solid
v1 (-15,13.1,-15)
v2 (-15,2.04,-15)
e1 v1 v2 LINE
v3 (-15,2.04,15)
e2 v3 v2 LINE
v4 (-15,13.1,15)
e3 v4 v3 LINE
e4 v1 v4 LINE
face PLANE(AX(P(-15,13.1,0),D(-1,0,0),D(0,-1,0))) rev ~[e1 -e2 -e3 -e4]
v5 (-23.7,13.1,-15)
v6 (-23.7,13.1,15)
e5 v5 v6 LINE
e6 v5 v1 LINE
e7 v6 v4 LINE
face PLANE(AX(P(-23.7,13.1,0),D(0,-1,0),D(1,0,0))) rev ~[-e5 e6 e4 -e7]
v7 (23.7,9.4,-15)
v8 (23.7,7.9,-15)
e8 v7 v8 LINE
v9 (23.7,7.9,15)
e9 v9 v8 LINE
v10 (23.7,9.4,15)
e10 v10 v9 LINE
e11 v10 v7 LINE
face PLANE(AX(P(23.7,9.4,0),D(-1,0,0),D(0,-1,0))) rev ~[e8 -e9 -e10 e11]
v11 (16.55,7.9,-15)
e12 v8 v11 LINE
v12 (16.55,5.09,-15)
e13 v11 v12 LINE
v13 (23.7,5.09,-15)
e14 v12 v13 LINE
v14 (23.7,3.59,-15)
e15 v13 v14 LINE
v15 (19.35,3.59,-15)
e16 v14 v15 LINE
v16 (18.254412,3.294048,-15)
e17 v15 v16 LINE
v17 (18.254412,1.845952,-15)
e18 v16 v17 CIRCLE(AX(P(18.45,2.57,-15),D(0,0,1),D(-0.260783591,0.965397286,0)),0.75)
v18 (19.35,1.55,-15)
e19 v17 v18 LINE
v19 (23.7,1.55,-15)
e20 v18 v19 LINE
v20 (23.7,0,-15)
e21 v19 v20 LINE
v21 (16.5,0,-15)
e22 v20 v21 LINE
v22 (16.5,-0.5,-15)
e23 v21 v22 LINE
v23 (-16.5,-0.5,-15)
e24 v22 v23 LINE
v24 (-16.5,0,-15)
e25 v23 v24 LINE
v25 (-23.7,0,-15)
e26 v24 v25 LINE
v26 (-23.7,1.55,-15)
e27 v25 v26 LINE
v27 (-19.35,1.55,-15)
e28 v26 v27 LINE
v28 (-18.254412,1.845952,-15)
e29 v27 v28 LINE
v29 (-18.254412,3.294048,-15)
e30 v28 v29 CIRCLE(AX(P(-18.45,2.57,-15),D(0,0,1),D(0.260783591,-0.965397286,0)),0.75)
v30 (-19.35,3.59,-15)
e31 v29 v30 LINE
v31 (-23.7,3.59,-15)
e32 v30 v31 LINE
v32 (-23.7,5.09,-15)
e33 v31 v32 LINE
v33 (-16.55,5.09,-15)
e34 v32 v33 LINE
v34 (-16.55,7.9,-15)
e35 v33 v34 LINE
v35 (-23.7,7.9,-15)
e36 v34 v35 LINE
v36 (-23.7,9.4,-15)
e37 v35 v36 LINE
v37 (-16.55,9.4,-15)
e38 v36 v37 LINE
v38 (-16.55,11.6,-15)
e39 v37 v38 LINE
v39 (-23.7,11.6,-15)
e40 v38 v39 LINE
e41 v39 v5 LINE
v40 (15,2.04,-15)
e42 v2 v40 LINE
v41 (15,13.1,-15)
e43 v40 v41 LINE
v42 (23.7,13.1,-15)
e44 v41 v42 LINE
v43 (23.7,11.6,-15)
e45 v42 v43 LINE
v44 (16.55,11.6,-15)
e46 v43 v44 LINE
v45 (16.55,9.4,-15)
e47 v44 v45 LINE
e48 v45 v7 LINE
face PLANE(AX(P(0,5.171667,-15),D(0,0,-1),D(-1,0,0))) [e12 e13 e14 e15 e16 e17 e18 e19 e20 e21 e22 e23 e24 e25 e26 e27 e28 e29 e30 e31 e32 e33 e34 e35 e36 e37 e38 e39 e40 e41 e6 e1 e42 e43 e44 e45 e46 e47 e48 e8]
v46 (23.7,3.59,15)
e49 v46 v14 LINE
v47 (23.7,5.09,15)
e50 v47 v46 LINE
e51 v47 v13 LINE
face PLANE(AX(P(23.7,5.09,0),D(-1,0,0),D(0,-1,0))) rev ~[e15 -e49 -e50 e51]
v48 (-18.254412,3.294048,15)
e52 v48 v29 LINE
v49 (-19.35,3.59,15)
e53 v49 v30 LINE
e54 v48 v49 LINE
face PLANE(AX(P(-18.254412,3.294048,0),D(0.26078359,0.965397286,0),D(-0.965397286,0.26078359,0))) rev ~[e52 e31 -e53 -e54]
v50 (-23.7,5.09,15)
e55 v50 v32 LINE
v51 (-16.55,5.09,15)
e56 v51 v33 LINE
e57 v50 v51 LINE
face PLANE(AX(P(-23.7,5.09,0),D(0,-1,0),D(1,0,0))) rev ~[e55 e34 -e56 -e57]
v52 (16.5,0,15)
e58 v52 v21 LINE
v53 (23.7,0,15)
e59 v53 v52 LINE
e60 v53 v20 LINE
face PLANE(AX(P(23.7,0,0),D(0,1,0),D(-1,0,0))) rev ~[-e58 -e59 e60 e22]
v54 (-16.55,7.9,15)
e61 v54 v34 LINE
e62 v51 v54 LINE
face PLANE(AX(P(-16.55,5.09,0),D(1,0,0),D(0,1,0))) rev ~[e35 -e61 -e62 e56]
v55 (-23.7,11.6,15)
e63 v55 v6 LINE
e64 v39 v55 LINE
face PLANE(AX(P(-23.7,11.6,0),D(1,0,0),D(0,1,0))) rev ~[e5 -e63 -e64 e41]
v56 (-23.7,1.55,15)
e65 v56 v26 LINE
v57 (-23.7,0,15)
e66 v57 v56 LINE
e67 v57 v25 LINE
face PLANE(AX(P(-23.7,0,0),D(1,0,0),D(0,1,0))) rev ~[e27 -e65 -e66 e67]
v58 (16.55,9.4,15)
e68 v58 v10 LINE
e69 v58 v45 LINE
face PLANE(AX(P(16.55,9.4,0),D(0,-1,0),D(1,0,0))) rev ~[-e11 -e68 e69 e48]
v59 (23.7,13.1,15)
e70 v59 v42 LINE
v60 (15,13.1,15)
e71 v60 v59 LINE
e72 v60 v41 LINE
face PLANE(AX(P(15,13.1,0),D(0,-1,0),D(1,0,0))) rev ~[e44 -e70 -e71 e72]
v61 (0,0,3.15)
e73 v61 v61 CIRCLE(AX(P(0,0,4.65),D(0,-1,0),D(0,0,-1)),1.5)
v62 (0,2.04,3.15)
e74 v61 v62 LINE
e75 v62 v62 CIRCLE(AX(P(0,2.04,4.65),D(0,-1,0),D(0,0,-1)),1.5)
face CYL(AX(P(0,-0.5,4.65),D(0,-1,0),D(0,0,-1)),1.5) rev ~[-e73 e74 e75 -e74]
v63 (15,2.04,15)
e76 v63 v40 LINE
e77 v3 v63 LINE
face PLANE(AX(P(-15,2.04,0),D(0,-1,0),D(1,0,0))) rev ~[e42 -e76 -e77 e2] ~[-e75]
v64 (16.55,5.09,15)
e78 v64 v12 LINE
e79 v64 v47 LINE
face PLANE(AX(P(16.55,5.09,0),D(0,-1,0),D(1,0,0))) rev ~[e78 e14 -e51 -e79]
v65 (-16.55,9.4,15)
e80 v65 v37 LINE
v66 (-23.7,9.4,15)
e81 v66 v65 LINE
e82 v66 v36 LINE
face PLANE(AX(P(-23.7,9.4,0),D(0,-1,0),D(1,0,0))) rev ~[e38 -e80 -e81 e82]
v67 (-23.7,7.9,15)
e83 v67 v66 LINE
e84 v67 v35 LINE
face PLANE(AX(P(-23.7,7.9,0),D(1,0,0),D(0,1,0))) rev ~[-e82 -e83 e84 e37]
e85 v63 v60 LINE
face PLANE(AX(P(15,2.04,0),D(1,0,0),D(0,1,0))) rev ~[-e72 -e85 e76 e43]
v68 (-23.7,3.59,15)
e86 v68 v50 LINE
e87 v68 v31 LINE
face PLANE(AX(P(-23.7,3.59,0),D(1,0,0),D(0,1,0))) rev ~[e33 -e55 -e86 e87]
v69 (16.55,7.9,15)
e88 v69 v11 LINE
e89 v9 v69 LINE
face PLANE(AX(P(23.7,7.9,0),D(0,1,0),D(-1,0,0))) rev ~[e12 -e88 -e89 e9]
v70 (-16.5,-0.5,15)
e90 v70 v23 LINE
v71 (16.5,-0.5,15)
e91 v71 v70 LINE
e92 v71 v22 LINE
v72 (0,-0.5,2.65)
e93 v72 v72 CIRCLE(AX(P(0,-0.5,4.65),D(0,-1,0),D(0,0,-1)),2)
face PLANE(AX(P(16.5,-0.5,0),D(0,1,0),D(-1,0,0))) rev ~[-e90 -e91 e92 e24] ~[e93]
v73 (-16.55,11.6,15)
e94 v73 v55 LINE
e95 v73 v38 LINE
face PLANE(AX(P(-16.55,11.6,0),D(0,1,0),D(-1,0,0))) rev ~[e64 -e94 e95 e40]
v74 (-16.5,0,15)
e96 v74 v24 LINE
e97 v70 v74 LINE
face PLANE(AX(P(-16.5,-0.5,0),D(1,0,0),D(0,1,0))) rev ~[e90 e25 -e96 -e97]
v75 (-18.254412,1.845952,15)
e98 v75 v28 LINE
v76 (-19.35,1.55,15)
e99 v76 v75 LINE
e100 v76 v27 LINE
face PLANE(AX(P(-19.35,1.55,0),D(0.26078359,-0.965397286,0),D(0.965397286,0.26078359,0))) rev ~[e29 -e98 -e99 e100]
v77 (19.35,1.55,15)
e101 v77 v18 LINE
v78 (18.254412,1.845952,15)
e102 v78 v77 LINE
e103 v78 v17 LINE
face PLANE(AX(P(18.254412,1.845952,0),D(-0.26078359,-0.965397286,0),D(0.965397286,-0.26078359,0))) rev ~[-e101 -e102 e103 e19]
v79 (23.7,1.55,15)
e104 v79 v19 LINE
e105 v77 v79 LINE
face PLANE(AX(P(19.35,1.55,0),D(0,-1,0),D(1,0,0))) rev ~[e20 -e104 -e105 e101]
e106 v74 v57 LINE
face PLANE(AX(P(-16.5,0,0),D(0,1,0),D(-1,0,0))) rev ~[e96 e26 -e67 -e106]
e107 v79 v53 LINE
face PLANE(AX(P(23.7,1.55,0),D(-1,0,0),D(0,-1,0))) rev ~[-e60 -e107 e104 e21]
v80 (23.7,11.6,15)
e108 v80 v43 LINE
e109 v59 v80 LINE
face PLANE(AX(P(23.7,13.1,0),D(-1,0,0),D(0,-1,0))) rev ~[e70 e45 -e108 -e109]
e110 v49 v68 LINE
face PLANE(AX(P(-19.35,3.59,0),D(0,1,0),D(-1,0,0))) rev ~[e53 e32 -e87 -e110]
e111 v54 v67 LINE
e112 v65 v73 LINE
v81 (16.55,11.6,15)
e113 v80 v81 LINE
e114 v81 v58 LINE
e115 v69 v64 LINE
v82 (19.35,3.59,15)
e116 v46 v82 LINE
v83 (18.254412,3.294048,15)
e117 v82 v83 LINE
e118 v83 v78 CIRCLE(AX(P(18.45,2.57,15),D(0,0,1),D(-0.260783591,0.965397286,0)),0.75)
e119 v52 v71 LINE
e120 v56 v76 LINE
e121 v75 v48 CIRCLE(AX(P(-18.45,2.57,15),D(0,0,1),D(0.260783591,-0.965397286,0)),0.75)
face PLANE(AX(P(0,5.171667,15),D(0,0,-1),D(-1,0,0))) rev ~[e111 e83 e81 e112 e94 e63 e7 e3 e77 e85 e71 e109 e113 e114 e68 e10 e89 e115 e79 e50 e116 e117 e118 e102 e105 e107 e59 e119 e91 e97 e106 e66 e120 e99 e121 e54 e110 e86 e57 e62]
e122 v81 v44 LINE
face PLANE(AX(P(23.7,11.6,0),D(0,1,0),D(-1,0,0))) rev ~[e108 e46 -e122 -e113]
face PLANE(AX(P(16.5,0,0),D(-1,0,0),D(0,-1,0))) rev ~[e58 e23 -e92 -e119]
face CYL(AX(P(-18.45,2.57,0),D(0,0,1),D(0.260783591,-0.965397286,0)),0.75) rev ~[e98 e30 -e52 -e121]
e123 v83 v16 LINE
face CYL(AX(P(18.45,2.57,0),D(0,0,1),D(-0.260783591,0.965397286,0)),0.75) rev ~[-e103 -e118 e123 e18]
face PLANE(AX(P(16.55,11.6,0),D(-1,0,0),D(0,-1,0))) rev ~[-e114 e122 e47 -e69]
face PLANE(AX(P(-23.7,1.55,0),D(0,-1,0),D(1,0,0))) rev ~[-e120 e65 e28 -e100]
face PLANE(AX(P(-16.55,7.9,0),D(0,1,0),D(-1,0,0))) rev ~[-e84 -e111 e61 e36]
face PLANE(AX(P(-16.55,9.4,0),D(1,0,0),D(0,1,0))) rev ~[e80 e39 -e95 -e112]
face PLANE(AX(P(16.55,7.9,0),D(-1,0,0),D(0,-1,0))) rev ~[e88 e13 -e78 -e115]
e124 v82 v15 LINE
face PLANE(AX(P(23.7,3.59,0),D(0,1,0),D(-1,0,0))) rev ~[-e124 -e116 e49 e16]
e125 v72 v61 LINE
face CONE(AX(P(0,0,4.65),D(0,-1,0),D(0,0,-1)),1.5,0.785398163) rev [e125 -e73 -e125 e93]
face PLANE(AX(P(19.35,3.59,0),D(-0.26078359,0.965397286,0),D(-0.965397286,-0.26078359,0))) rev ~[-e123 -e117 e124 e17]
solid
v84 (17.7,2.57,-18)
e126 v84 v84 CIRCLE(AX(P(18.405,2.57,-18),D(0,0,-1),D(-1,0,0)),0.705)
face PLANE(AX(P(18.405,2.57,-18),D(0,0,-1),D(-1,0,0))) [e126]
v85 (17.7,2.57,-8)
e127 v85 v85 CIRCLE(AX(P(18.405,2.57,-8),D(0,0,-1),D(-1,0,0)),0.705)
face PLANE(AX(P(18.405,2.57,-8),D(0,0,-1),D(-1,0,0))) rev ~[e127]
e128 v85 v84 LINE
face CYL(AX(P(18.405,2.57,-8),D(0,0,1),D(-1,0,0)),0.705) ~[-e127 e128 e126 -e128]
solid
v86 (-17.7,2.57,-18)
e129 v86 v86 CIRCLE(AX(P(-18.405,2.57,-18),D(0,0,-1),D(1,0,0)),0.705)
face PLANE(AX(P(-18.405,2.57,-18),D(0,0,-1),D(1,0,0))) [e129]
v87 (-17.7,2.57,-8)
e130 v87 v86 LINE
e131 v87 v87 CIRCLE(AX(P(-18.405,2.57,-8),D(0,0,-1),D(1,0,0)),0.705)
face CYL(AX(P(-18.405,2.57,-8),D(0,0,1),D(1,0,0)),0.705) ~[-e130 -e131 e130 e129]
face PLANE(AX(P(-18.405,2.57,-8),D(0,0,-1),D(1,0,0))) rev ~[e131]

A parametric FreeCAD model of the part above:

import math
import FreeCAD as App
import Part
import Sketcher

V = App.Vector


def edges_at(feature, points):
    """Names of the edges that pass closest to the given points."""
    edges = feature.Shape.Edges
    near = lambda p: min(range(len(edges)), key=lambda i: edges[i].distToShape(Part.Vertex(*p))[0])
    return sorted({f"Edge{near(p) + 1}" for p in points})

doc = App.newDocument("Part")
body = doc.addObject("PartDesign::Body", "Body")

# Sketch on XY plane
sketch1 = body.newObject("Sketcher::SketchObject", "Sketch")
sketch1.AttachmentSupport = (doc.getObject("XY_Plane"), [""])
sketch1.MapMode = "FlatFace"
sketch1.addGeometry(Part.LineSegment(V(-15, 2, 0), V(-15, 13.1, 0)), False)
sketch1.addGeometry(Part.LineSegment(V(-15, 13.1, 0), V(-23.7, 13.1, 0)), False)
sketch1.addGeometry(Part.LineSegment(V(-23.7, 13.1, 0), V(-23.7, 11.6, 0)), False)
sketch1.addGeometry(Part.LineSegment(V(-23.7, 11.6, 0), V(-16.6, 11.6, 0)), False)
sketch1.addGeometry(Part.LineSegment(V(-16.6, 11.6, 0), V(-16.6, 9.4, 0)), False)
sketch1.addGeometry(Part.LineSegment(V(-16.6, 9.4, 0), V(-23.7, 9.4, 0)), False)
sketch1.addGeometry(Part.LineSegment(V(-23.7, 9.4, 0), V(-23.7, 7.9, 0)), False)
sketch1.addGeometry(Part.LineSegment(V(-23.7, 7.9, 0), V(-16.6, 7.9, 0)), False)
sketch1.addGeometry(Part.LineSegment(V(-16.6, 7.9, 0), V(-16.6, 5.1, 0)), False)
sketch1.addGeometry(Part.LineSegment(V(-16.6, 5.1, 0), V(-23.7, 5.1, 0)), False)
sketch1.addGeometry(Part.LineSegment(V(-23.7, 5.1, 0), V(-23.7, 3.6, 0)), False)
sketch1.addGeometry(Part.LineSegment(V(-23.7, 3.6, 0), V(-19.4, 3.6, 0)), False)
sketch1.addGeometry(Part.LineSegment(V(-19.4, 3.6, 0), V(-18.3, 3.3, 0)), False)
sketch1.addGeometry(Part.ArcOfCircle(Part.Circle(V(-18.4, 2.6, 0), V(0, 0, 1), 0.8), math.radians(-75), math.radians(75)), False)
sketch1.addGeometry(Part.LineSegment(V(-18.3, 1.8, 0), V(-19.4, 1.6, 0)), False)
sketch1.addGeometry(Part.LineSegment(V(-19.4, 1.6, 0), V(-23.7, 1.6, 0)), False)
sketch1.addGeometry(Part.LineSegment(V(-23.7, 1.6, 0), V(-23.7, 0, 0)), False)
sketch1.addGeometry(Part.LineSegment(V(-23.7, 0, 0), V(-16.5, 0, 0)), False)
sketch1.addGeometry(Part.LineSegment(V(-16.5, 0, 0), V(-16.5, -0.5, 0)), False)
sketch1.addGeometry(Part.LineSegment(V(-16.5, -0.5, 0), V(16.5, -0.5, 0)), False)
sketch1.addGeometry(Part.LineSegment(V(16.5, -0.5, 0), V(16.5, 0, 0)), False)
sketch1.addGeometry(Part.LineSegment(V(16.5, 0, 0), V(23.7, 0, 0)), False)
sketch1.addGeometry(Part.LineSegment(V(23.7, 0, 0), V(23.7, 1.6, 0)), False)
sketch1.addGeometry(Part.LineSegment(V(23.7, 1.6, 0), V(19.4, 1.6, 0)), False)
sketch1.addGeometry(Part.LineSegment(V(19.4, 1.6, 0), V(18.3, 1.8, 0)), False)
sketch1.addGeometry(Part.ArcOfCircle(Part.Circle(V(18.4, 2.6, 0), V(0, 0, 1), 0.8), math.radians(105), math.radians(255)), False)
sketch1.addGeometry(Part.LineSegment(V(18.3, 3.3, 0), V(19.4, 3.6, 0)), False)
sketch1.addGeometry(Part.LineSegment(V(19.4, 3.6, 0), V(23.7, 3.6, 0)), False)
sketch1.addGeometry(Part.LineSegment(V(23.7, 3.6, 0), V(23.7, 5.1, 0)), False)
sketch1.addGeometry(Part.LineSegment(V(23.7, 5.1, 0), V(16.6, 5.1, 0)), False)
sketch1.addGeometry(Part.LineSegment(V(16.6, 5.1, 0), V(16.6, 7.9, 0)), False)
sketch1.addGeometry(Part.LineSegment(V(16.6, 7.9, 0), V(23.7, 7.9, 0)), False)
sketch1.addGeometry(Part.LineSegment(V(23.7, 7.9, 0), V(23.7, 9.4, 0)), False)
sketch1.addGeometry(Part.LineSegment(V(23.7, 9.4, 0), V(16.6, 9.4, 0)), False)
sketch1.addGeometry(Part.LineSegment(V(16.6, 9.4, 0), V(16.6, 11.6, 0)), False)
sketch1.addGeometry(Part.LineSegment(V(16.6, 11.6, 0), V(23.7, 11.6, 0)), False)
sketch1.addGeometry(Part.LineSegment(V(23.7, 11.6, 0), V(23.7, 13.1, 0)), False)
sketch1.addGeometry(Part.LineSegment(V(23.7, 13.1, 0), V(15, 13.1, 0)), False)
sketch1.addGeometry(Part.LineSegment(V(15, 13.1, 0), V(15, 2, 0)), False)
sketch1.addGeometry(Part.LineSegment(V(15, 2, 0), V(-15, 2, 0)), False)
sketch1.addConstraint(Sketcher.Constraint("Coincident", 0, 2, 1, 1))
sketch1.addConstraint(Sketcher.Constraint("Coincident", 1, 2, 2, 1))
sketch1.addConstraint(Sketcher.Constraint("Coincident", 2, 2, 3, 1))
sketch1.addConstraint(Sketcher.Constraint("Coincident", 3, 2, 4, 1))
sketch1.addConstraint(Sketcher.Constraint("Coincident", 4, 2, 5, 1))
sketch1.addConstraint(Sketcher.Constraint("Coincident", 5, 2, 6, 1))
sketch1.addConstraint(Sketcher.Constraint("Coincident", 6, 2, 7, 1))
sketch1.addConstraint(Sketcher.Constraint("Coincident", 7, 2, 8, 1))
sketch1.addConstraint(Sketcher.Constraint("Coincident", 8, 2, 9, 1))
sketch1.addConstraint(Sketcher.Constraint("Coincident", 9, 2, 10, 1))
sketch1.addConstraint(Sketcher.Constraint("Coincident", 10, 2, 11, 1))
sketch1.addConstraint(Sketcher.Constraint("Coincident", 11, 2, 12, 1))
sketch1.addConstraint(Sketcher.Constraint("Tangent", 12, 2, 13, 2))
sketch1.addConstraint(Sketcher.Constraint("Tangent", 13, 1, 14, 1))
sketch1.addConstraint(Sketcher.Constraint("Coincident", 14, 2, 15, 1))
sketch1.addConstraint(Sketcher.Constraint("Coincident", 15, 2, 16, 1))
sketch1.addConstraint(Sketcher.Constraint("Coincident", 16, 2, 17, 1))
sketch1.addConstraint(Sketcher.Constraint("Coincident", 17, 2, 18, 1))
sketch1.addConstraint(Sketcher.Constraint("Coincident", 18, 2, 19, 1))
sketch1.addConstraint(Sketcher.Constraint("Coincident", 19, 2, 20, 1))
sketch1.addConstraint(Sketcher.Constraint("Coincident", 20, 2, 21, 1))
sketch1.addConstraint(Sketcher.Constraint("Coincident", 21, 2, 22, 1))
sketch1.addConstraint(Sketcher.Constraint("Coincident", 22, 2, 23, 1))
sketch1.addConstraint(Sketcher.Constraint("Coincident", 23, 2, 24, 1))
sketch1.addConstraint(Sketcher.Constraint("Tangent", 24, 2, 25, 2))
sketch1.addConstraint(Sketcher.Constraint("Tangent", 25, 1, 26, 1))
sketch1.addConstraint(Sketcher.Constraint("Coincident", 26, 2, 27, 1))
sketch1.addConstraint(Sketcher.Constraint("Coincident", 27, 2, 28, 1))
sketch1.addConstraint(Sketcher.Constraint("Coincident", 28, 2, 29, 1))
sketch1.addConstraint(Sketcher.Constraint("Coincident", 29, 2, 30, 1))
sketch1.addConstraint(Sketcher.Constraint("Coincident", 30, 2, 31, 1))
sketch1.addConstraint(Sketcher.Constraint("Coincident", 31, 2, 32, 1))
sketch1.addConstraint(Sketcher.Constraint("Coincident", 32, 2, 33, 1))
sketch1.addConstraint(Sketcher.Constraint("Coincident", 33, 2, 34, 1))
sketch1.addConstraint(Sketcher.Constraint("Coincident", 34, 2, 35, 1))
sketch1.addConstraint(Sketcher.Constraint("Coincident", 35, 2, 36, 1))
sketch1.addConstraint(Sketcher.Constraint("Coincident", 36, 2, 37, 1))
sketch1.addConstraint(Sketcher.Constraint("Coincident", 37, 2, 38, 1))
sketch1.addConstraint(Sketcher.Constraint("Coincident", 38, 2, 39, 1))
sketch1.addConstraint(Sketcher.Constraint("Coincident", 39, 2, 0, 1))
sketch1.addConstraint(Sketcher.Constraint("Vertical", 0))
sketch1.addConstraint(Sketcher.Constraint("Horizontal", 1))
sketch1.addConstraint(Sketcher.Constraint("Vertical", 2))
sketch1.addConstraint(Sketcher.Constraint("Horizontal", 3))
sketch1.addConstraint(Sketcher.Constraint("Vertical", 4))
sketch1.addConstraint(Sketcher.Constraint("Horizontal", 5))
sketch1.addConstraint(Sketcher.Constraint("Vertical", 6))
sketch1.addConstraint(Sketcher.Constraint("Horizontal", 7))
sketch1.addConstraint(Sketcher.Constraint("Vertical", 8))
sketch1.addConstraint(Sketcher.Constraint("Horizontal", 9))
sketch1.addConstraint(Sketcher.Constraint("Vertical", 10))
sketch1.addConstraint(Sketcher.Constraint("Horizontal", 11))
sketch1.addConstraint(Sketcher.Constraint("Horizontal", 15))
sketch1.addConstraint(Sketcher.Constraint("Vertical", 16))
sketch1.addConstraint(Sketcher.Constraint("Horizontal", 17))
sketch1.addConstraint(Sketcher.Constraint("Vertical", 18))
sketch1.addConstraint(Sketcher.Constraint("Horizontal", 19))
sketch1.addConstraint(Sketcher.Constraint("Vertical", 20))
sketch1.addConstraint(Sketcher.Constraint("Horizontal", 21))
sketch1.addConstraint(Sketcher.Constraint("Vertical", 22))
sketch1.addConstraint(Sketcher.Constraint("Horizontal", 23))
sketch1.addConstraint(Sketcher.Constraint("Horizontal", 27))
sketch1.addConstraint(Sketcher.Constraint("Vertical", 28))
sketch1.addConstraint(Sketcher.Constraint("Horizontal", 29))
sketch1.addConstraint(Sketcher.Constraint("Vertical", 30))
sketch1.addConstraint(Sketcher.Constraint("Horizontal", 31))
sketch1.addConstraint(Sketcher.Constraint("Vertical", 32))
sketch1.addConstraint(Sketcher.Constraint("Horizontal", 33))
sketch1.addConstraint(Sketcher.Constraint("Vertical", 34))
sketch1.addConstraint(Sketcher.Constraint("Horizontal", 35))
sketch1.addConstraint(Sketcher.Constraint("Vertical", 36))
sketch1.addConstraint(Sketcher.Constraint("Horizontal", 37))
sketch1.addConstraint(Sketcher.Constraint("Vertical", 38))
sketch1.addConstraint(Sketcher.Constraint("Horizontal", 39))
sketch1.addConstraint(Sketcher.Constraint("Equal", 13, 25))
sketch1.addConstraint(Sketcher.Constraint("Symmetric", 17, 2, 20, 2, -1, 1))
sketch1.addConstraint(Sketcher.Constraint("Symmetric", 13, 3, 25, 3, -2))
sketch1.addConstraint(Sketcher.Constraint("Symmetric", 16, 2, 21, 2, -2))
sketch1.addConstraint(Sketcher.Constraint("Symmetric", 14, 2, 23, 2, -2))
sketch1.addConstraint(Sketcher.Constraint("Symmetric", 11, 2, 26, 2, -2))
sketch1.addConstraint(Sketcher.Constraint("Symmetric", 9, 2, 28, 2, -2))
sketch1.addConstraint(Sketcher.Constraint("Symmetric", 7, 2, 30, 2, -2))
sketch1.addConstraint(Sketcher.Constraint("Symmetric", 5, 2, 32, 2, -2))
sketch1.addConstraint(Sketcher.Constraint("Symmetric", 3, 2, 34, 2, -2))
sketch1.addConstraint(Sketcher.Constraint("Symmetric", 1, 2, 36, 2, -2))
sketch1.addConstraint(Sketcher.Constraint("Parallel", 12, 24))
sketch1.addConstraint(Sketcher.Constraint("Vertical", 2, 2, 5, 2))
sketch1.addConstraint(Sketcher.Constraint("Vertical", 4, 2, 7, 2))
sketch1.addConstraint(Sketcher.Constraint("Vertical", 6, 2, 9, 2))
sketch1.addConstraint(Sketcher.Constraint("Vertical", 11, 2, 14, 2))
sketch1.addConstraint(Sketcher.Constraint("Vertical", 10, 2, 15, 2))
sketch1.addConstraint(Sketcher.Constraint("Equal", 1, 37))
sketch1.addConstraint(Sketcher.Constraint("Equal", 2, 6))
sketch1.addConstraint(Sketcher.Constraint("Equal", 6, 10))
sketch1.addConstraint(Sketcher.Constraint("DistanceX", 19, 1, 19, 2, 33.0))
sketch1.addConstraint(Sketcher.Constraint("DistanceX", 39, 2, 39, 1, 30.0))
sketch1.addConstraint(Sketcher.Constraint("Radius", 13, 0.75))
sketch1.addConstraint(Sketcher.Constraint("DistanceX", 1, 2, 1, 1, 8.7))
sketch1.addConstraint(Sketcher.Constraint("DistanceY", 2, 2, 2, 1, 1.5))
sketch1.addConstraint(Sketcher.Constraint("DistanceY", 4, 2, 4, 1, 2.2))
sketch1.addConstraint(Sketcher.Constraint("DistanceY", 18, 2, 18, 1, 0.5))
sketch1.addConstraint(Sketcher.Constraint("DistanceX", 3, 2, 25, 3, 35.0))
sketch1.addConstraint(Sketcher.Constraint("DistanceX", 3, 1, 3, 2, 7.15))
sketch1.addConstraint(Sketcher.Constraint("DistanceX", 11, 1, 11, 2, 4.35))
sketch1.addConstraint(Sketcher.Constraint("DistanceY", 0, 1, 0, 2, 11.06))
sketch1.addConstraint(Sketcher.Constraint("DistanceY", 8, 2, 8, 1, 2.81))
sketch1.addConstraint(Sketcher.Constraint("DistanceY", 16, 2, 16, 1, 1.55))
sketch1.addConstraint(Sketcher.Constraint("DistanceY", -1, 1, 0, 2, 13.1))
pad1 = body.newObject("PartDesign::Pad", "Pad")
pad1.Profile = sketch1
pad1.Length = 30
pad1.Midplane = True

# Sketch on XZ plane
sketch2 = body.newObject("Sketcher::SketchObject", "Sketch001")
sketch2.AttachmentSupport = (doc.getObject("XZ_Plane"), [""])
sketch2.MapMode = "FlatFace"
sketch2.AttachmentOffset = App.Placement(V(0, 0, 0.5), App.Rotation())
sketch2.addGeometry(Part.Circle(V(0, 4.7, 0), V(0, 0, 1), 1.5), False)
sketch2.addConstraint(Sketcher.Constraint("PointOnObject", 0, 3, -2))
sketch2.addConstraint(Sketcher.Constraint("Diameter", 0, 3.0))
sketch2.addConstraint(Sketcher.Constraint("DistanceY", -1, 1, 0, 3, 4.65))
pocket1 = body.newObject("PartDesign::Pocket", "Pocket")
pocket1.Profile = sketch2
pocket1.Type = "ThroughAll"
doc.recompute()

chamfer = body.newObject("PartDesign::Chamfer", "Chamfer")
chamfer.Base = (pocket1, edges_at(pocket1, [(0, -0.5, 6.15)]))
chamfer.Size = 0.5
body2 = doc.addObject("PartDesign::Body", "Body001")

# Sketch on XY plane
sketch3 = body2.newObject("Sketcher::SketchObject", "Sketch002")
sketch3.AttachmentSupport = (doc.getObject("XY_Plane001"), [""])
sketch3.MapMode = "FlatFace"
sketch3.AttachmentOffset = App.Placement(V(0, 0, -15), App.Rotation())
sketch3.addGeometry(Part.Circle(V(18.4, 2.6, 0), V(0, 0, 1), 0.7), False)
sketch3.addConstraint(Sketcher.Constraint("Diameter", 0, 1.41))
sketch3.addConstraint(Sketcher.Constraint("DistanceY", -1, 1, 0, 3, 2.57))
sketch3.addConstraint(Sketcher.Constraint("DistanceX", -1, 1, 0, 3, 18.405))
pad2 = body2.newObject("PartDesign::Pad", "Pad001")
pad2.Profile = sketch3
pad2.Type = "TwoLengths"
pad2.Length = 3
pad2.Length2 = 7
pad2.Reversed = True
body3 = doc.addObject("PartDesign::Body", "Body002")

# Sketch on XY plane
sketch4 = body3.newObject("Sketcher::SketchObject", "Sketch003")
sketch4.AttachmentSupport = (doc.getObject("XY_Plane002"), [""])
sketch4.MapMode = "FlatFace"
sketch4.AttachmentOffset = App.Placement(V(0, 0, -15), App.Rotation())
sketch4.addGeometry(Part.Circle(V(-18.4, 2.6, 0), V(0, 0, 1), 0.7), False)
sketch4.addConstraint(Sketcher.Constraint("Diameter", 0, 1.41))
sketch4.addConstraint(Sketcher.Constraint("DistanceY", -1, 1, 0, 3, 2.57))
sketch4.addConstraint(Sketcher.Constraint("DistanceX", 0, 3, -1, 1, 18.405))
pad3 = body3.newObject("PartDesign::Pad", "Pad002")
pad3.Profile = sketch4
pad3.Type = "TwoLengths"
pad3.Length = 3
pad3.Length2 = 7
pad3.Reversed = True

doc.recompute()
